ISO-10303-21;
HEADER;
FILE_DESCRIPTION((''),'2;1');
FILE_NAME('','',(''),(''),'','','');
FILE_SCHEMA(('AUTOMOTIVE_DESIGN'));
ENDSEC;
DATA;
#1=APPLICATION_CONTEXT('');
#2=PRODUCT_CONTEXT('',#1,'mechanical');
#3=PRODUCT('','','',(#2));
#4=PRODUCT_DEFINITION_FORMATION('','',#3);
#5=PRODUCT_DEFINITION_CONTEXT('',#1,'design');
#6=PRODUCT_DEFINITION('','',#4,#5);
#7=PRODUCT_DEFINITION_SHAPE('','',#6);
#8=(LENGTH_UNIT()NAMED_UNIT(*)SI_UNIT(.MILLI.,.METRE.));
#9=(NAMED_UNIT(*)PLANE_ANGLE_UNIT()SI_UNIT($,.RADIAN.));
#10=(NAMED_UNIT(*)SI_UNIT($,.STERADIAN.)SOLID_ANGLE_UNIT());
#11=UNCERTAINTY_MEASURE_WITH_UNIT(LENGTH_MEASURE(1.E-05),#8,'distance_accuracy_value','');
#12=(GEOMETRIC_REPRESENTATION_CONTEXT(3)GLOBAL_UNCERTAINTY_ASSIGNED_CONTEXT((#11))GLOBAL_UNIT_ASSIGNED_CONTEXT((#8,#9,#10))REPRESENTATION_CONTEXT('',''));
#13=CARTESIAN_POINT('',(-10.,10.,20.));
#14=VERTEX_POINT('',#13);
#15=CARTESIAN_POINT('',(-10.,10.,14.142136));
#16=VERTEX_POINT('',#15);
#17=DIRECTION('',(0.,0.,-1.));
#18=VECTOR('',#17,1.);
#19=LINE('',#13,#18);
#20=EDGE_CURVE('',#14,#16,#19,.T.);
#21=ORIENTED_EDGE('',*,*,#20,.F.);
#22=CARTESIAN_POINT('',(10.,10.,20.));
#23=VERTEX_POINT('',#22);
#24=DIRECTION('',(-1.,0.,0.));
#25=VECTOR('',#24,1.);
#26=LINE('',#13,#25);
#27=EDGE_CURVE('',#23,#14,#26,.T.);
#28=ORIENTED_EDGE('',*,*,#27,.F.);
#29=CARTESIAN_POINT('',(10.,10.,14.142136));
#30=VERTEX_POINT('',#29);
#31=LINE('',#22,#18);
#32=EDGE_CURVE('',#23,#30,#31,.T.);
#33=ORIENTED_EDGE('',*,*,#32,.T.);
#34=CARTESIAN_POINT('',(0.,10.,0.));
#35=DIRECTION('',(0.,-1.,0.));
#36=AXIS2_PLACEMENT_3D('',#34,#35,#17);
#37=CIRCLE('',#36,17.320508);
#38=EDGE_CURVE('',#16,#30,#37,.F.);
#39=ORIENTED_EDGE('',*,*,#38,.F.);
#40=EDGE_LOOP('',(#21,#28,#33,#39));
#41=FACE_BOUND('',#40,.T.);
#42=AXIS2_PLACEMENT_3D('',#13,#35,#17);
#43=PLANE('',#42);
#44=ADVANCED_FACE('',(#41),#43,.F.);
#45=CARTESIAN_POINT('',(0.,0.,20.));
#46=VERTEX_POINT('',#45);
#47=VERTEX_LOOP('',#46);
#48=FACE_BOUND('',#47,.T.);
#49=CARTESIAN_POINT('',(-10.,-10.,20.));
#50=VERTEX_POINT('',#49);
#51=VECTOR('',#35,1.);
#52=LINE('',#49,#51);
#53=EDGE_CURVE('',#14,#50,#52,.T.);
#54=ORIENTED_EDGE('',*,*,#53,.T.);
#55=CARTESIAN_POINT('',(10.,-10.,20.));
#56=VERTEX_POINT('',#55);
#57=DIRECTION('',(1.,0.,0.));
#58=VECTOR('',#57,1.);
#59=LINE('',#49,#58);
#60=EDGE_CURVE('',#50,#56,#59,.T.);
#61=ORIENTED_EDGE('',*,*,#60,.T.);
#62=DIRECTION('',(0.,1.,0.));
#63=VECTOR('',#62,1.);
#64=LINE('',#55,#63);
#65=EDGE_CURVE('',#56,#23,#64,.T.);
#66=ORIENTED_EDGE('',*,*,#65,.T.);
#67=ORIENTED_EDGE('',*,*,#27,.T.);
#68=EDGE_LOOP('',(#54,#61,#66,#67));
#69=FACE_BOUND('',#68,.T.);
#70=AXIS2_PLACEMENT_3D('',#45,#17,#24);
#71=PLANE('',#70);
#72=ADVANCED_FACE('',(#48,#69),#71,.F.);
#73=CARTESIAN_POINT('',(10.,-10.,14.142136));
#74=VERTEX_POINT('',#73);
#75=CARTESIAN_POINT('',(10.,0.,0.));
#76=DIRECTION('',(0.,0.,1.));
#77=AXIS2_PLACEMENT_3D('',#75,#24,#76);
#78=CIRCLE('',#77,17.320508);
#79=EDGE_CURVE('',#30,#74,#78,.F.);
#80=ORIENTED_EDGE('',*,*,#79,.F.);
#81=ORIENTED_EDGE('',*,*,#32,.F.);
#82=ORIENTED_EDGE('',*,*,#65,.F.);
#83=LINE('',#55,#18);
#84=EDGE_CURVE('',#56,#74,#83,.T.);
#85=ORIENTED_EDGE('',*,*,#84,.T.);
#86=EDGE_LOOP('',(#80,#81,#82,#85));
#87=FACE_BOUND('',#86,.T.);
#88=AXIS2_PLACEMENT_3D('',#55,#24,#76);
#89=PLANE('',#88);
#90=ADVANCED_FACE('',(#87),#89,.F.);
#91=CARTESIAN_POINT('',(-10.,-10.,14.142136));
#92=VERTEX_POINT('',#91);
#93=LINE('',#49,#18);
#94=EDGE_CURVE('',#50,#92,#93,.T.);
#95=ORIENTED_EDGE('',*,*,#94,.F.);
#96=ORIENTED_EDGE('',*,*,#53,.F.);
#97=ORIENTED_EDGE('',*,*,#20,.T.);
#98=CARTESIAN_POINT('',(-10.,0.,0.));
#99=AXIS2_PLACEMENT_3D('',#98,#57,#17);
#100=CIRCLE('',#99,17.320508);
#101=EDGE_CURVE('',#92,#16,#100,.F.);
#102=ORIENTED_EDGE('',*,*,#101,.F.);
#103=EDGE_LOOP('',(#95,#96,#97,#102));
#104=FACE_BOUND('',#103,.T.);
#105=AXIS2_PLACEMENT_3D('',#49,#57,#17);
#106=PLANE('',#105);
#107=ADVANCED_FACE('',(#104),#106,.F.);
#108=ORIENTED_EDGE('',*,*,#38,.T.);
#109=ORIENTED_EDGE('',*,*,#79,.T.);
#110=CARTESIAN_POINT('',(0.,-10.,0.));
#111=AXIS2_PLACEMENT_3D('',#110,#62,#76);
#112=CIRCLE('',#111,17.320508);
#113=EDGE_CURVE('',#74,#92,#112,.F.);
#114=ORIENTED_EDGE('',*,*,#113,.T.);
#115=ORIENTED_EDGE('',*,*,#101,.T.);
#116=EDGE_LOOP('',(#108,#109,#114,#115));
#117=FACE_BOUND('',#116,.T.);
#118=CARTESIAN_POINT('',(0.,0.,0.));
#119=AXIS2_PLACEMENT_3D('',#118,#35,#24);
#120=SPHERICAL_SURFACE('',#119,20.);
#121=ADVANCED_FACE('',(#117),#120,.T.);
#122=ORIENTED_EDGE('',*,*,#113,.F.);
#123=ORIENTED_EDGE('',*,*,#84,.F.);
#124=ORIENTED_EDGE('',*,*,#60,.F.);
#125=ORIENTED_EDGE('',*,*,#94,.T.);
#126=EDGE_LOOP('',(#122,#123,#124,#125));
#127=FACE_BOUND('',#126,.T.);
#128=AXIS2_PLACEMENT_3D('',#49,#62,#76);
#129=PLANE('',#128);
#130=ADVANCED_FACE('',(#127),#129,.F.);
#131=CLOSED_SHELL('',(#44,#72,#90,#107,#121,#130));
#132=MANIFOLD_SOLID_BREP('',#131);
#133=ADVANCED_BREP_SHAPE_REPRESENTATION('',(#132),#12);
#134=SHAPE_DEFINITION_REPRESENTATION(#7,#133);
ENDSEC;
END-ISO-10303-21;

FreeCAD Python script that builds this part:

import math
import FreeCAD as App
import Part
import Sketcher

V = App.Vector
Q = App.Units.Quantity


def add_polygon(sketch, points):
    """Adds a closed chain of lines whose ends are joined by coincident constraints."""
    first, n = sketch.GeometryCount, len(points)
    for a, b in zip(points, points[1:] + points[:1]):
        sketch.addGeometry(Part.LineSegment(App.Vector(*a, 0), App.Vector(*b, 0)), False)
    for i in range(n):
        sketch.addConstraint(Sketcher.Constraint("Coincident", first + i, 2, first + (i + 1) % n, 1))

doc = App.newDocument("Part")
params = doc.addObject("Spreadsheet::Sheet", "Params")
for row, (alias, value) in enumerate([
    ("sketch1_radius", "20 mm"),
    ("revolution_angle", "360 deg"),
    ("sketch2_width", "20 mm"),
    ("pad1_length", "20 mm"),
], start=1):
    params.set(f"A{row}", alias)
    params.set(f"B{row}", "=" + value)
    params.setAlias(f"B{row}", alias)

body = doc.addObject("PartDesign::Body", "Body")

# Sketch on XY plane
sketch1 = body.newObject("Sketcher::SketchObject", "Sketch")
sketch1.AttachmentSupport = (doc.getObject("XY_Plane"), [""])
sketch1.MapMode = "FlatFace"
sketch1.addGeometry([
    Part.LineSegment(V(0, 20, 0), V(0, -20, 0)),
    Part.ArcOfCircle(Part.Circle(V(0, 0, 0), V(0, 0, 1), 20), math.radians(-90), math.radians(90)),
], False)
sketch1.addConstraint([
    Sketcher.Constraint("Coincident", 0, 1, 1, 2),
    Sketcher.Constraint("Coincident", 1, 1, 0, 2),
    Sketcher.Constraint("Vertical", 0),
    Sketcher.Constraint("Coincident", 1, 3, -1, 1),
    Sketcher.Constraint("PointOnObject", 0, 1, -2),
    Sketcher.Constraint("Radius", 1, Q("20 mm")),
])
sketch1.setExpression("Constraints[5]", "Params.sketch1_radius")
revolution = body.newObject("PartDesign::Revolution", "Revolution")
revolution.Profile = sketch1
revolution.ReferenceAxis = (sketch1, ["V_Axis"])
revolution.setExpression("Angle", "Params.revolution_angle")

# Sketch on XY plane
sketch2 = body.newObject("Sketcher::SketchObject", "Sketch001")
sketch2.AttachmentSupport = (doc.getObject("XY_Plane"), [""])
sketch2.MapMode = "FlatFace"
add_polygon(sketch2, [(-10, 10), (-10, -10), (10, -10), (10, 10)])  # lines 0-3
sketch2.addConstraint([
    Sketcher.Constraint("Vertical", 0),
    Sketcher.Constraint("Horizontal", 1),
    Sketcher.Constraint("Vertical", 2),
    Sketcher.Constraint("Horizontal", 3),
    Sketcher.Constraint("Symmetric", 0, 2, 2, 2, -1, 1),
    Sketcher.Constraint("Equal", 3, 0),
    Sketcher.Constraint("DistanceX", 1, 1, 1, 2, Q("20 mm")),
])
sketch2.setExpression("Constraints[10]", "Params.sketch2_width")
pad1 = body.newObject("PartDesign::Pad", "Pad")
pad1.Profile = sketch2
pad1.setExpression("Length", "Params.pad1_length")

doc.recompute()
